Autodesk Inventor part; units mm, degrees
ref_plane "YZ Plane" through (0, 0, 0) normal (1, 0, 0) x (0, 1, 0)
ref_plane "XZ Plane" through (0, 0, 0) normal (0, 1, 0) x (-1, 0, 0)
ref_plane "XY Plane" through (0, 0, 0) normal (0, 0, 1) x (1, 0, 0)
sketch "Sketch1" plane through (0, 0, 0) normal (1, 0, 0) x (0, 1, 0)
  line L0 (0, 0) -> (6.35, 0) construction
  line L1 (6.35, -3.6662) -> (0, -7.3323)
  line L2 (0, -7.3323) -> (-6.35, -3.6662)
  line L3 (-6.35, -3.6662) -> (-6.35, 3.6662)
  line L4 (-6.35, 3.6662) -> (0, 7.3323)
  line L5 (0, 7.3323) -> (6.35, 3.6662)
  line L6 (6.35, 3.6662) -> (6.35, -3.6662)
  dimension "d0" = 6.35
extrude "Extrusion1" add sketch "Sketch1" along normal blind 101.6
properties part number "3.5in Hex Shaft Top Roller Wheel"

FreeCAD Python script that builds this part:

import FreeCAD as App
import Part
import Sketcher
Q = App.Units.Quantity


def add_polygon(sketch, points):
    """Adds a closed chain of lines whose ends are joined by coincident constraints."""
    first, n = sketch.GeometryCount, len(points)
    for a, b in zip(points, points[1:] + points[:1]):
        sketch.addGeometry(Part.LineSegment(App.Vector(*a, 0), App.Vector(*b, 0)), False)
    for i in range(n):
        sketch.addConstraint(Sketcher.Constraint("Coincident", first + i, 2, first + (i + 1) % n, 1))

doc = App.newDocument("Part")
params = doc.addObject("Spreadsheet::Sheet", "Params")
for row, (alias, value) in enumerate([
    ("pad1_length", "4 in"),
], start=1):
    params.set(f"A{row}", alias)
    params.set(f"B{row}", "=" + value)
    params.setAlias(f"B{row}", alias)

body = doc.addObject("PartDesign::Body", "Body")

# Sketch on YZ plane
sketch1 = body.newObject("Sketcher::SketchObject", "Sketch")
sketch1.AttachmentSupport = (doc.getObject("YZ_Plane"), [""])
sketch1.MapMode = "FlatFace"
add_polygon(sketch1, [(0, -7.3323), (6.35, -3.6662), (6.35, 3.6662), (0, 7.3323), (-6.35, 3.6662), (-6.35, -3.6662)])  # lines 0-5
sketch1.addConstraint([
    Sketcher.Constraint("Vertical", 1),
    Sketcher.Constraint("Vertical", 4),
    Sketcher.Constraint("Symmetric", 0, 2, 3, 2, -1, 1),
    Sketcher.Constraint("Symmetric", 2, 2, 5, 2, -1, 1),
    Sketcher.Constraint("PointOnObject", 2, 2, -2),
    Sketcher.Constraint("Parallel", 2, 5),
    Sketcher.Constraint("Horizontal", 1, 2, 3, 2),
    Sketcher.Constraint("DistanceX", -1, 1, 0, 2, Q("0.25 in")),
    Sketcher.Constraint("Angle", 0, Q("29.9995 deg")),
    Sketcher.Constraint("DistanceY", 0, 2, 2, 2, Q("0.433 in")),
])
pad1 = body.newObject("PartDesign::Pad", "Pad")
pad1.Profile = sketch1
pad1.setExpression("Length", "Params.pad1_length")

doc.recompute()
